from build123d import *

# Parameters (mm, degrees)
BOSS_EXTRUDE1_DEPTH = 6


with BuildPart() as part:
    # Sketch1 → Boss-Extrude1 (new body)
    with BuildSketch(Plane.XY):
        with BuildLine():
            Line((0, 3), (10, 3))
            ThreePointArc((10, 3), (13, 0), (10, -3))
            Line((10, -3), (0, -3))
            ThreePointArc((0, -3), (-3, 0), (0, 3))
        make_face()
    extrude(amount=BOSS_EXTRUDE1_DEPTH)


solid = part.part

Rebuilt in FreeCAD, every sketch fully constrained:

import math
import FreeCAD as App
import Part
import Sketcher

V = App.Vector
Q = App.Units.Quantity

doc = App.newDocument("Part")
body = doc.addObject("PartDesign::Body", "Body")

# Sketch on XY plane
sketch1 = doc.addObject("Sketcher::SketchObject", "Sketch")
body.addObject(sketch1)
sketch1.AttachmentSupport = (doc.XY_Plane, [""])
sketch1.MapMode = "FlatFace"
sketch1.addGeometry(Part.LineSegment(V(10, 3, 0), V(0, 3, 0)), False)
sketch1.addGeometry(Part.ArcOfCircle(Part.Circle(V(0, 0, 0), V(0, 0, 1), 3), math.radians(90), math.radians(270)), False)
sketch1.addGeometry(Part.LineSegment(V(0, -3, 0), V(10, -3, 0)), False)
sketch1.addGeometry(Part.ArcOfCircle(Part.Circle(V(10, 0, 0), V(0, 0, 1), 3), math.radians(-90), math.radians(90)), False)
sketch1.addConstraint(Sketcher.Constraint("Tangent", 0, 2, 1, 1))
sketch1.addConstraint(Sketcher.Constraint("Tangent", 1, 2, 2, 1))
sketch1.addConstraint(Sketcher.Constraint("Tangent", 2, 2, 3, 1))
sketch1.addConstraint(Sketcher.Constraint("Tangent", 3, 2, 0, 1))
sketch1.addConstraint(Sketcher.Constraint("Horizontal", 0))
sketch1.addConstraint(Sketcher.Constraint("Horizontal", 2))
sketch1.addConstraint(Sketcher.Constraint("Coincident", 1, 3, -1, 1))
sketch1.addConstraint(Sketcher.Constraint("Radius", 1, Q("3 mm")))
sketch1.addConstraint(Sketcher.Constraint("DistanceX", 0, 2, 0, 1, Q("10 mm")))
pad1 = doc.addObject("PartDesign::Pad", "Pad")
body.addObject(pad1)
pad1.Profile = sketch1
pad1.Length = 6

doc.recompute()
